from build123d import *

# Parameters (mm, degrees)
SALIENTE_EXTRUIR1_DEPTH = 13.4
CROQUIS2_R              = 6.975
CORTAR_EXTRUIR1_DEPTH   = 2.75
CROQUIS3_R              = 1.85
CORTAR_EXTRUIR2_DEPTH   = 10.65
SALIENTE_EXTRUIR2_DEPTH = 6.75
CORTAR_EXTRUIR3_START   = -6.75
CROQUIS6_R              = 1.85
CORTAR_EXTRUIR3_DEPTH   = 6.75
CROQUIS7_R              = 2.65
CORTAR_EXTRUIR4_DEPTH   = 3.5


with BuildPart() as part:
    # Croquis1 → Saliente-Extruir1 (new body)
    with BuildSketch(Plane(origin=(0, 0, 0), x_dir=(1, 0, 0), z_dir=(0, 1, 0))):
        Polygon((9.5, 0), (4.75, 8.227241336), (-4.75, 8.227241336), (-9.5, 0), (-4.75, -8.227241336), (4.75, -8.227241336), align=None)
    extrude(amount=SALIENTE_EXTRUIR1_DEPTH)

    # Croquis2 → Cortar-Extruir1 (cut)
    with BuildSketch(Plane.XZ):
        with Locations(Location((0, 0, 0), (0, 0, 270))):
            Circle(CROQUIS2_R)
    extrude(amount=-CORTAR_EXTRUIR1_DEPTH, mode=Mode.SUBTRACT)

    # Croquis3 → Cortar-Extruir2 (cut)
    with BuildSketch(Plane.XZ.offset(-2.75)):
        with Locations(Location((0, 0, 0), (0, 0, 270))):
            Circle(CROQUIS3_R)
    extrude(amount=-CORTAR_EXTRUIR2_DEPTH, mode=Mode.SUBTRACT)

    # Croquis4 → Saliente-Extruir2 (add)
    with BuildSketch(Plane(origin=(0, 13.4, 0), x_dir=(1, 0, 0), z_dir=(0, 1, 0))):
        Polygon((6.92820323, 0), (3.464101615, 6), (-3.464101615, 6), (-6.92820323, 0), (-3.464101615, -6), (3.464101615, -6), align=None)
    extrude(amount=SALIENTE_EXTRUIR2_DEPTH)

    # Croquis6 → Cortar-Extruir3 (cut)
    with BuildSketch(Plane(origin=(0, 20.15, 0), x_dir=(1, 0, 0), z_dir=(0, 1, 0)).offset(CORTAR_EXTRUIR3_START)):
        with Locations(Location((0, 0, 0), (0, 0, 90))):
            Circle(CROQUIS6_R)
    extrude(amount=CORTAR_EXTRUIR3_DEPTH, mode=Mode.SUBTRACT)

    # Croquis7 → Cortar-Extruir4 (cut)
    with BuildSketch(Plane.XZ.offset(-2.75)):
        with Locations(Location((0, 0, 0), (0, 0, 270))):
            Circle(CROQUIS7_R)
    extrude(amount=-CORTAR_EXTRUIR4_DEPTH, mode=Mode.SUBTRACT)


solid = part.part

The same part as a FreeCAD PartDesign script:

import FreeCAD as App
import Part
import Sketcher
Q = App.Units.Quantity

doc = App.newDocument("Part")
params = doc.addObject("Spreadsheet::Sheet", "Params")
for row, (alias, value) in enumerate([
    ("sketch1_width", "9.5 mm"),
    ("pad1_length", "13.4 mm"),
    ("sketch2_diameter", "13.95 mm"),
    ("pocket1_length", "2.75 mm"),
    ("sketch3_diameter", "3.7 mm"),
    ("pocket2_length", "10.65 mm"),
    ("pad2_length", "6.75 mm"),
    ("sketch5_diameter", "3.7 mm"),
    ("pocket3_length", "6.75 mm"),
    ("sketch6_diameter", "5.3 mm"),
    ("pocket4_length", "3.5 mm"),
], start=1):
    params.set(f"A{row}", alias)
    params.set(f"B{row}", "=" + value)
    params.setAlias(f"B{row}", alias)

body = doc.addObject("PartDesign::Body", "Body")

# Sketch on XZ plane
sketch1 = doc.addObject("Sketcher::SketchObject", "Sketch")
body.addObject(sketch1)
sketch1.AttachmentSupport = (doc.XZ_Plane, [""])
sketch1.MapMode = "FlatFace"
sketch1.addGeometry(Part.LineSegment(App.Vector(10, 0, 0), App.Vector(5, -8, 0)), False)
sketch1.addGeometry(Part.LineSegment(App.Vector(5, -8, 0), App.Vector(-5, -8, 0)), False)
sketch1.addGeometry(Part.LineSegment(App.Vector(-5, -8, 0), App.Vector(-10, 0, 0)), False)
sketch1.addGeometry(Part.LineSegment(App.Vector(-10, 0, 0), App.Vector(-5, 8, 0)), False)
sketch1.addGeometry(Part.LineSegment(App.Vector(-5, 8, 0), App.Vector(5, 8, 0)), False)
sketch1.addGeometry(Part.LineSegment(App.Vector(5, 8, 0), App.Vector(10, 0, 0)), False)
sketch1.addConstraint(Sketcher.Constraint("Coincident", 0, 2, 1, 1))
sketch1.addConstraint(Sketcher.Constraint("Coincident", 1, 2, 2, 1))
sketch1.addConstraint(Sketcher.Constraint("Coincident", 2, 2, 3, 1))
sketch1.addConstraint(Sketcher.Constraint("Coincident", 3, 2, 4, 1))
sketch1.addConstraint(Sketcher.Constraint("Coincident", 4, 2, 5, 1))
sketch1.addConstraint(Sketcher.Constraint("Coincident", 5, 2, 0, 1))
sketch1.addConstraint(Sketcher.Constraint("Horizontal", 1))
sketch1.addConstraint(Sketcher.Constraint("Horizontal", 4))
sketch1.addConstraint(Sketcher.Constraint("Symmetric", 0, 2, 3, 2, -1, 1))
sketch1.addConstraint(Sketcher.Constraint("Symmetric", 2, 2, 5, 2, -1, 1))
sketch1.addConstraint(Sketcher.Constraint("PointOnObject", 2, 2, -1))
sketch1.addConstraint(Sketcher.Constraint("Parallel", 2, 5))
sketch1.addConstraint(Sketcher.Constraint("Vertical", 1, 2, 3, 2))
sketch1.addConstraint(Sketcher.Constraint("Angle", 0, Q("-120 deg")))
sketch1.addConstraint(Sketcher.Constraint("DistanceX", 1, 2, 1, 1, 9.5))
sketch1.addConstraint(Sketcher.Constraint("DistanceX", 2, 2, 5, 2, 19.0))
sketch1.setExpression("Constraints[14]", "Params.sketch1_width")
pad1 = doc.addObject("PartDesign::Pad", "Pad")
body.addObject(pad1)
pad1.Profile = sketch1
pad1.setExpression("Length", "Params.pad1_length")
pad1.Reversed = True

# Sketch on XZ plane
sketch2 = doc.addObject("Sketcher::SketchObject", "Sketch001")
body.addObject(sketch2)
sketch2.AttachmentSupport = (doc.XZ_Plane, [""])
sketch2.MapMode = "FlatFace"
sketch2.addGeometry(Part.Circle(App.Vector(0, 0, 0), App.Vector(0, 0, 1), 7), False)
sketch2.addConstraint(Sketcher.Constraint("Coincident", 0, 3, -1, 1))
sketch2.addConstraint(Sketcher.Constraint("Diameter", 0, 13.95))
sketch2.setExpression("Constraints[1]", "Params.sketch2_diameter")
pocket1 = doc.addObject("PartDesign::Pocket", "Pocket")
body.addObject(pocket1)
pocket1.Profile = sketch2
pocket1.setExpression("Length", "Params.pocket1_length")

# Sketch on XZ plane
sketch3 = doc.addObject("Sketcher::SketchObject", "Sketch002")
body.addObject(sketch3)
sketch3.AttachmentSupport = (doc.XZ_Plane, [""])
sketch3.MapMode = "FlatFace"
sketch3.AttachmentOffset = App.Placement(App.Vector(0, 0, -2.75), App.Rotation())
sketch3.addGeometry(Part.Circle(App.Vector(0, 0, 0), App.Vector(0, 0, 1), 1.9), False)
sketch3.addConstraint(Sketcher.Constraint("Coincident", 0, 3, -1, 1))
sketch3.addConstraint(Sketcher.Constraint("Diameter", 0, 3.7))
sketch3.setExpression("Constraints[1]", "Params.sketch3_diameter")
pocket2 = doc.addObject("PartDesign::Pocket", "Pocket001")
body.addObject(pocket2)
pocket2.Profile = sketch3
pocket2.setExpression("Length", "Params.pocket2_length")

# Sketch on XZ plane
sketch4 = doc.addObject("Sketcher::SketchObject", "Sketch003")
body.addObject(sketch4)
sketch4.AttachmentSupport = (doc.XZ_Plane, [""])
sketch4.MapMode = "FlatFace"
sketch4.AttachmentOffset = App.Placement(App.Vector(0, 0, -13.4), App.Rotation())
sketch4.addGeometry(Part.LineSegment(App.Vector(7, 0, 0), App.Vector(3, -6, 0)), False)
sketch4.addGeometry(Part.LineSegment(App.Vector(3, -6, 0), App.Vector(-3, -6, 0)), False)
sketch4.addGeometry(Part.LineSegment(App.Vector(-3, -6, 0), App.Vector(-7, 0, 0)), False)
sketch4.addGeometry(Part.LineSegment(App.Vector(-7, 0, 0), App.Vector(-3, 6, 0)), False)
sketch4.addGeometry(Part.LineSegment(App.Vector(-3, 6, 0), App.Vector(3, 6, 0)), False)
sketch4.addGeometry(Part.LineSegment(App.Vector(3, 6, 0), App.Vector(7, 0, 0)), False)
sketch4.addConstraint(Sketcher.Constraint("Coincident", 0, 2, 1, 1))
sketch4.addConstraint(Sketcher.Constraint("Coincident", 1, 2, 2, 1))
sketch4.addConstraint(Sketcher.Constraint("Coincident", 2, 2, 3, 1))
sketch4.addConstraint(Sketcher.Constraint("Coincident", 3, 2, 4, 1))
sketch4.addConstraint(Sketcher.Constraint("Coincident", 4, 2, 5, 1))
sketch4.addConstraint(Sketcher.Constraint("Coincident", 5, 2, 0, 1))
sketch4.addConstraint(Sketcher.Constraint("Horizontal", 1))
sketch4.addConstraint(Sketcher.Constraint("Horizontal", 4))
sketch4.addConstraint(Sketcher.Constraint("Symmetric", 0, 2, 3, 2, -1, 1))
sketch4.addConstraint(Sketcher.Constraint("Symmetric", 2, 2, 5, 2, -1, 1))
sketch4.addConstraint(Sketcher.Constraint("PointOnObject", 2, 2, -1))
sketch4.addConstraint(Sketcher.Constraint("Parallel", 2, 5))
sketch4.addConstraint(Sketcher.Constraint("Vertical", 1, 2, 3, 2))
sketch4.addConstraint(Sketcher.Constraint("Angle", 0, Q("-120 deg")))
sketch4.addConstraint(Sketcher.Constraint("DistanceY", 0, 2, -1, 1, 6.0))
sketch4.addConstraint(Sketcher.Constraint("DistanceX", -1, 1, 0, 2, 3.464102))
pad2 = doc.addObject("PartDesign::Pad", "Pad001")
body.addObject(pad2)
pad2.Profile = sketch4
pad2.setExpression("Length", "Params.pad2_length")
pad2.Reversed = True

# Sketch on XZ plane
sketch5 = doc.addObject("Sketcher::SketchObject", "Sketch004")
body.addObject(sketch5)
sketch5.AttachmentSupport = (doc.XZ_Plane, [""])
sketch5.MapMode = "FlatFace"
sketch5.AttachmentOffset = App.Placement(App.Vector(0, 0, -13.4), App.Rotation())
sketch5.addGeometry(Part.Circle(App.Vector(0, 0, 0), App.Vector(0, 0, 1), 1.9), False)
sketch5.addConstraint(Sketcher.Constraint("Coincident", 0, 3, -1, 1))
sketch5.addConstraint(Sketcher.Constraint("Diameter", 0, 3.7))
sketch5.setExpression("Constraints[1]", "Params.sketch5_diameter")
pocket3 = doc.addObject("PartDesign::Pocket", "Pocket002")
body.addObject(pocket3)
pocket3.Profile = sketch5
pocket3.setExpression("Length", "Params.pocket3_length")

# Sketch on XZ plane
sketch6 = doc.addObject("Sketcher::SketchObject", "Sketch005")
body.addObject(sketch6)
sketch6.AttachmentSupport = (doc.XZ_Plane, [""])
sketch6.MapMode = "FlatFace"
sketch6.AttachmentOffset = App.Placement(App.Vector(0, 0, -2.75), App.Rotation())
sketch6.addGeometry(Part.Circle(App.Vector(0, 0, 0), App.Vector(0, 0, 1), 2.6), False)
sketch6.addConstraint(Sketcher.Constraint("Coincident", 0, 3, -1, 1))
sketch6.addConstraint(Sketcher.Constraint("Diameter", 0, 5.3))
sketch6.setExpression("Constraints[1]", "Params.sketch6_diameter")
pocket4 = doc.addObject("PartDesign::Pocket", "Pocket003")
body.addObject(pocket4)
pocket4.Profile = sketch6
pocket4.setExpression("Length", "Params.pocket4_length")

doc.recompute()
